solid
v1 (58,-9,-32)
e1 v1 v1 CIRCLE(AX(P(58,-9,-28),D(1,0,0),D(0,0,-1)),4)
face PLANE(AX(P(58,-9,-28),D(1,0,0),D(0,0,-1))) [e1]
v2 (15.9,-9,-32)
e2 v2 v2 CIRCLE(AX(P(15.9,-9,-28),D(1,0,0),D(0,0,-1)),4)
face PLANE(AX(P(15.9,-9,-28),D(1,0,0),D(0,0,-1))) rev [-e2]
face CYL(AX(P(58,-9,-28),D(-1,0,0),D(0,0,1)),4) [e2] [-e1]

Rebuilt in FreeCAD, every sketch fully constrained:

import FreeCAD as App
import Part
import Sketcher

V = App.Vector
Q = App.Units.Quantity

doc = App.newDocument("Part")
body = doc.addObject("PartDesign::Body", "Body")

# Sketch on YZ plane
sketch1 = body.newObject("Sketcher::SketchObject", "Sketch")
sketch1.AttachmentSupport = (doc.getObject("YZ_Plane"), [""])
sketch1.MapMode = "FlatFace"
sketch1.AttachmentOffset = App.Placement(V(0, 0, 15.9), App.Rotation())
sketch1.addGeometry(Part.Circle(V(-9, -28, 0), V(0, 0, 1), 4), False)
sketch1.addConstraint([
    Sketcher.Constraint("Diameter", 0, Q("8 mm")),
    Sketcher.Constraint("DistanceX", 0, 3, -1, 1, Q("9 mm")),
    Sketcher.Constraint("DistanceY", 0, 3, -1, 1, Q("28 mm")),
])
pad1 = body.newObject("PartDesign::Pad", "Pad")
pad1.Profile = sketch1
pad1.Length = 42.1

doc.recompute()
